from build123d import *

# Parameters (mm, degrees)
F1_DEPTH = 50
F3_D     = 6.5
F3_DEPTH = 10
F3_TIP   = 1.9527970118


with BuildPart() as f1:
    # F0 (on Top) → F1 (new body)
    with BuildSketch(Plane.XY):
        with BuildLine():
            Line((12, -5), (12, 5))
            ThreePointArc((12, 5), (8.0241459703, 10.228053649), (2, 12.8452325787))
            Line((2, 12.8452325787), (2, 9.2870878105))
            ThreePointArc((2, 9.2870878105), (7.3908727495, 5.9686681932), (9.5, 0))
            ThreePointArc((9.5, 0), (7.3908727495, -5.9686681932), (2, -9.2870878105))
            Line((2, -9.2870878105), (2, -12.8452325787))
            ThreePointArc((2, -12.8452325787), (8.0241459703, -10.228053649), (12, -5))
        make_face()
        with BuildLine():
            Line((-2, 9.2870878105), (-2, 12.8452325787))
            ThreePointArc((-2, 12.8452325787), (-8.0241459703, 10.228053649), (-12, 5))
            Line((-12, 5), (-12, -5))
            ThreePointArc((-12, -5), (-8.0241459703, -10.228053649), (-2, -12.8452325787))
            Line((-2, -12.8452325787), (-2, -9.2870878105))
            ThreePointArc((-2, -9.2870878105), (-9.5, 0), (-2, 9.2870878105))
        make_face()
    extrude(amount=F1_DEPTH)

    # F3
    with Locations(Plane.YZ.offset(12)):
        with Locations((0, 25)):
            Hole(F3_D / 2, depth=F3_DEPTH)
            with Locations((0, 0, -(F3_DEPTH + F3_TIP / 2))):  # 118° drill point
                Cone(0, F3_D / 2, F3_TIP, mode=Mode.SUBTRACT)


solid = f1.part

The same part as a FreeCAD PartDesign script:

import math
import FreeCAD as App
import Part
import Sketcher

V = App.Vector

doc = App.newDocument("Part")
body = doc.addObject("PartDesign::Body", "Body")
body.AllowCompound = True

# Sketch on XY plane
sketch1 = body.newObject("Sketcher::SketchObject", "Sketch")
sketch1.AttachmentSupport = (doc.getObject("XY_Plane"), [""])
sketch1.MapMode = "FlatFace"
sketch1.addGeometry([
    Part.LineSegment(V(12, -5, 0), V(12, 5, 0)),  # 0
    Part.ArcOfCircle(Part.Circle(V(0, 0, 0), V(0, 0, 1), 13), math.radians(22.619865), math.radians(81.150117)),  # 1
    Part.LineSegment(V(2, 12.845233, 0), V(2, 9.287088, 0)),  # 2
    Part.ArcOfCircle(Part.Circle(V(0, 0, 0), V(0, 0, 1), 9.5), math.radians(0), math.radians(77.846803)),  # 3
    Part.ArcOfCircle(Part.Circle(V(0, 0, 0), V(0, 0, 1), 9.5), math.radians(-77.846803), math.radians(0)),  # 4
    Part.LineSegment(V(2, -9.287088, 0), V(2, -12.845233, 0)),  # 5
    Part.ArcOfCircle(Part.Circle(V(0, 0, 0), V(0, 0, 1), 13), math.radians(-81.150117), math.radians(-22.619865)),  # 6
    Part.LineSegment(V(-2, 9.287088, 0), V(-2, 12.845233, 0)),  # 7
    Part.ArcOfCircle(Part.Circle(V(0, 0, 0), V(0, 0, 1), 13), math.radians(98.849883), math.radians(157.380135)),  # 8
    Part.LineSegment(V(-12, 5, 0), V(-12, -5, 0)),  # 9
    Part.ArcOfCircle(Part.Circle(V(0, 0, 0), V(0, 0, 1), 13), math.radians(-157.380135), math.radians(-98.849883)),  # 10
    Part.LineSegment(V(-2, -12.845233, 0), V(-2, -9.287088, 0)),  # 11
    Part.ArcOfCircle(Part.Circle(V(0, 0, 0), V(0, 0, 1), 9.5), math.radians(102.153197), math.radians(257.846803)),  # 12
], False)
sketch1.addConstraint([
    Sketcher.Constraint("Coincident", 0, 2, 1, 1),
    Sketcher.Constraint("Coincident", 1, 2, 2, 1),
    Sketcher.Constraint("Coincident", 2, 2, 3, 2),
    Sketcher.Constraint("Tangent", 3, 1, 4, 2),
    Sketcher.Constraint("Coincident", 4, 1, 5, 1),
    Sketcher.Constraint("Coincident", 5, 2, 6, 1),
    Sketcher.Constraint("Coincident", 6, 2, 0, 1),
    Sketcher.Constraint("Coincident", 7, 2, 8, 1),
    Sketcher.Constraint("Coincident", 8, 2, 9, 1),
    Sketcher.Constraint("Coincident", 9, 2, 10, 1),
    Sketcher.Constraint("Coincident", 10, 2, 11, 1),
    Sketcher.Constraint("Coincident", 11, 2, 12, 2),
    Sketcher.Constraint("Coincident", 12, 1, 7, 1),
    Sketcher.Constraint("Vertical", 0),
    Sketcher.Constraint("Vertical", 2),
    Sketcher.Constraint("Vertical", 5),
    Sketcher.Constraint("Vertical", 7),
    Sketcher.Constraint("Vertical", 9),
    Sketcher.Constraint("Vertical", 11),
    Sketcher.Constraint("Coincident", 1, 3, -1, 1),
    Sketcher.Constraint("Coincident", 3, 3, -1, 1),
    Sketcher.Constraint("Coincident", 6, 3, -1, 1),
    Sketcher.Constraint("Coincident", 8, 3, -1, 1),
    Sketcher.Constraint("Coincident", 10, 3, -1, 1),
    Sketcher.Constraint("Coincident", 12, 3, -1, 1),
    Sketcher.Constraint("Equal", 3, 4),
    Sketcher.Constraint("Equal", 1, 6),
    Sketcher.Constraint("Equal", 6, 8),
    Sketcher.Constraint("Equal", 8, 10),
    Sketcher.Constraint("Equal", 4, 12),
    Sketcher.Constraint("PointOnObject", 3, 1, -1),
    Sketcher.Constraint("Horizontal", 1, 2, 7, 2),
    Sketcher.Constraint("Horizontal", 0, 2, 8, 2),
    Sketcher.Constraint("Horizontal", 5, 2, 10, 2),
    Sketcher.Constraint("Vertical", 2, 2, 4, 1),
    Sketcher.Constraint("Radius", 1, 13.0),
    Sketcher.Constraint("Radius", 3, 9.5),
    Sketcher.Constraint("DistanceY", 0, 1, 0, 2, 10.0),
    Sketcher.Constraint("DistanceX", -1, 1, 1, 2, 2.0),
])
pad1 = body.newObject("PartDesign::Pad", "Pad")
pad1.Profile = sketch1
pad1.Length = 50

# Sketch on YZ plane
sketch2 = body.newObject("Sketcher::SketchObject", "Sketch001")
sketch2.AttachmentSupport = (doc.getObject("YZ_Plane"), [""])
sketch2.MapMode = "FlatFace"
sketch2.AttachmentOffset = App.Placement(V(0, 0, 12), App.Rotation())
sketch2.addGeometry(Part.Circle(V(0, 25, 0), V(0, 0, 1), 3.25), False)
sketch2.addConstraint([
    Sketcher.Constraint("PointOnObject", 0, 3, -2),
    Sketcher.Constraint("Diameter", 0, 6.5),
    Sketcher.Constraint("DistanceY", -1, 1, 0, 3, 25.0),
])
doc.recompute()
hole = body.newObject("PartDesign::Hole", "Hole")
hole.Profile = sketch2
hole.ThreadType = "None"
hole.Diameter = 6.5
hole.DepthType = "Dimension"
hole.Depth = 10
hole.DrillPoint = "Angled"
hole.DrillPointAngle = 118

doc.recompute()
